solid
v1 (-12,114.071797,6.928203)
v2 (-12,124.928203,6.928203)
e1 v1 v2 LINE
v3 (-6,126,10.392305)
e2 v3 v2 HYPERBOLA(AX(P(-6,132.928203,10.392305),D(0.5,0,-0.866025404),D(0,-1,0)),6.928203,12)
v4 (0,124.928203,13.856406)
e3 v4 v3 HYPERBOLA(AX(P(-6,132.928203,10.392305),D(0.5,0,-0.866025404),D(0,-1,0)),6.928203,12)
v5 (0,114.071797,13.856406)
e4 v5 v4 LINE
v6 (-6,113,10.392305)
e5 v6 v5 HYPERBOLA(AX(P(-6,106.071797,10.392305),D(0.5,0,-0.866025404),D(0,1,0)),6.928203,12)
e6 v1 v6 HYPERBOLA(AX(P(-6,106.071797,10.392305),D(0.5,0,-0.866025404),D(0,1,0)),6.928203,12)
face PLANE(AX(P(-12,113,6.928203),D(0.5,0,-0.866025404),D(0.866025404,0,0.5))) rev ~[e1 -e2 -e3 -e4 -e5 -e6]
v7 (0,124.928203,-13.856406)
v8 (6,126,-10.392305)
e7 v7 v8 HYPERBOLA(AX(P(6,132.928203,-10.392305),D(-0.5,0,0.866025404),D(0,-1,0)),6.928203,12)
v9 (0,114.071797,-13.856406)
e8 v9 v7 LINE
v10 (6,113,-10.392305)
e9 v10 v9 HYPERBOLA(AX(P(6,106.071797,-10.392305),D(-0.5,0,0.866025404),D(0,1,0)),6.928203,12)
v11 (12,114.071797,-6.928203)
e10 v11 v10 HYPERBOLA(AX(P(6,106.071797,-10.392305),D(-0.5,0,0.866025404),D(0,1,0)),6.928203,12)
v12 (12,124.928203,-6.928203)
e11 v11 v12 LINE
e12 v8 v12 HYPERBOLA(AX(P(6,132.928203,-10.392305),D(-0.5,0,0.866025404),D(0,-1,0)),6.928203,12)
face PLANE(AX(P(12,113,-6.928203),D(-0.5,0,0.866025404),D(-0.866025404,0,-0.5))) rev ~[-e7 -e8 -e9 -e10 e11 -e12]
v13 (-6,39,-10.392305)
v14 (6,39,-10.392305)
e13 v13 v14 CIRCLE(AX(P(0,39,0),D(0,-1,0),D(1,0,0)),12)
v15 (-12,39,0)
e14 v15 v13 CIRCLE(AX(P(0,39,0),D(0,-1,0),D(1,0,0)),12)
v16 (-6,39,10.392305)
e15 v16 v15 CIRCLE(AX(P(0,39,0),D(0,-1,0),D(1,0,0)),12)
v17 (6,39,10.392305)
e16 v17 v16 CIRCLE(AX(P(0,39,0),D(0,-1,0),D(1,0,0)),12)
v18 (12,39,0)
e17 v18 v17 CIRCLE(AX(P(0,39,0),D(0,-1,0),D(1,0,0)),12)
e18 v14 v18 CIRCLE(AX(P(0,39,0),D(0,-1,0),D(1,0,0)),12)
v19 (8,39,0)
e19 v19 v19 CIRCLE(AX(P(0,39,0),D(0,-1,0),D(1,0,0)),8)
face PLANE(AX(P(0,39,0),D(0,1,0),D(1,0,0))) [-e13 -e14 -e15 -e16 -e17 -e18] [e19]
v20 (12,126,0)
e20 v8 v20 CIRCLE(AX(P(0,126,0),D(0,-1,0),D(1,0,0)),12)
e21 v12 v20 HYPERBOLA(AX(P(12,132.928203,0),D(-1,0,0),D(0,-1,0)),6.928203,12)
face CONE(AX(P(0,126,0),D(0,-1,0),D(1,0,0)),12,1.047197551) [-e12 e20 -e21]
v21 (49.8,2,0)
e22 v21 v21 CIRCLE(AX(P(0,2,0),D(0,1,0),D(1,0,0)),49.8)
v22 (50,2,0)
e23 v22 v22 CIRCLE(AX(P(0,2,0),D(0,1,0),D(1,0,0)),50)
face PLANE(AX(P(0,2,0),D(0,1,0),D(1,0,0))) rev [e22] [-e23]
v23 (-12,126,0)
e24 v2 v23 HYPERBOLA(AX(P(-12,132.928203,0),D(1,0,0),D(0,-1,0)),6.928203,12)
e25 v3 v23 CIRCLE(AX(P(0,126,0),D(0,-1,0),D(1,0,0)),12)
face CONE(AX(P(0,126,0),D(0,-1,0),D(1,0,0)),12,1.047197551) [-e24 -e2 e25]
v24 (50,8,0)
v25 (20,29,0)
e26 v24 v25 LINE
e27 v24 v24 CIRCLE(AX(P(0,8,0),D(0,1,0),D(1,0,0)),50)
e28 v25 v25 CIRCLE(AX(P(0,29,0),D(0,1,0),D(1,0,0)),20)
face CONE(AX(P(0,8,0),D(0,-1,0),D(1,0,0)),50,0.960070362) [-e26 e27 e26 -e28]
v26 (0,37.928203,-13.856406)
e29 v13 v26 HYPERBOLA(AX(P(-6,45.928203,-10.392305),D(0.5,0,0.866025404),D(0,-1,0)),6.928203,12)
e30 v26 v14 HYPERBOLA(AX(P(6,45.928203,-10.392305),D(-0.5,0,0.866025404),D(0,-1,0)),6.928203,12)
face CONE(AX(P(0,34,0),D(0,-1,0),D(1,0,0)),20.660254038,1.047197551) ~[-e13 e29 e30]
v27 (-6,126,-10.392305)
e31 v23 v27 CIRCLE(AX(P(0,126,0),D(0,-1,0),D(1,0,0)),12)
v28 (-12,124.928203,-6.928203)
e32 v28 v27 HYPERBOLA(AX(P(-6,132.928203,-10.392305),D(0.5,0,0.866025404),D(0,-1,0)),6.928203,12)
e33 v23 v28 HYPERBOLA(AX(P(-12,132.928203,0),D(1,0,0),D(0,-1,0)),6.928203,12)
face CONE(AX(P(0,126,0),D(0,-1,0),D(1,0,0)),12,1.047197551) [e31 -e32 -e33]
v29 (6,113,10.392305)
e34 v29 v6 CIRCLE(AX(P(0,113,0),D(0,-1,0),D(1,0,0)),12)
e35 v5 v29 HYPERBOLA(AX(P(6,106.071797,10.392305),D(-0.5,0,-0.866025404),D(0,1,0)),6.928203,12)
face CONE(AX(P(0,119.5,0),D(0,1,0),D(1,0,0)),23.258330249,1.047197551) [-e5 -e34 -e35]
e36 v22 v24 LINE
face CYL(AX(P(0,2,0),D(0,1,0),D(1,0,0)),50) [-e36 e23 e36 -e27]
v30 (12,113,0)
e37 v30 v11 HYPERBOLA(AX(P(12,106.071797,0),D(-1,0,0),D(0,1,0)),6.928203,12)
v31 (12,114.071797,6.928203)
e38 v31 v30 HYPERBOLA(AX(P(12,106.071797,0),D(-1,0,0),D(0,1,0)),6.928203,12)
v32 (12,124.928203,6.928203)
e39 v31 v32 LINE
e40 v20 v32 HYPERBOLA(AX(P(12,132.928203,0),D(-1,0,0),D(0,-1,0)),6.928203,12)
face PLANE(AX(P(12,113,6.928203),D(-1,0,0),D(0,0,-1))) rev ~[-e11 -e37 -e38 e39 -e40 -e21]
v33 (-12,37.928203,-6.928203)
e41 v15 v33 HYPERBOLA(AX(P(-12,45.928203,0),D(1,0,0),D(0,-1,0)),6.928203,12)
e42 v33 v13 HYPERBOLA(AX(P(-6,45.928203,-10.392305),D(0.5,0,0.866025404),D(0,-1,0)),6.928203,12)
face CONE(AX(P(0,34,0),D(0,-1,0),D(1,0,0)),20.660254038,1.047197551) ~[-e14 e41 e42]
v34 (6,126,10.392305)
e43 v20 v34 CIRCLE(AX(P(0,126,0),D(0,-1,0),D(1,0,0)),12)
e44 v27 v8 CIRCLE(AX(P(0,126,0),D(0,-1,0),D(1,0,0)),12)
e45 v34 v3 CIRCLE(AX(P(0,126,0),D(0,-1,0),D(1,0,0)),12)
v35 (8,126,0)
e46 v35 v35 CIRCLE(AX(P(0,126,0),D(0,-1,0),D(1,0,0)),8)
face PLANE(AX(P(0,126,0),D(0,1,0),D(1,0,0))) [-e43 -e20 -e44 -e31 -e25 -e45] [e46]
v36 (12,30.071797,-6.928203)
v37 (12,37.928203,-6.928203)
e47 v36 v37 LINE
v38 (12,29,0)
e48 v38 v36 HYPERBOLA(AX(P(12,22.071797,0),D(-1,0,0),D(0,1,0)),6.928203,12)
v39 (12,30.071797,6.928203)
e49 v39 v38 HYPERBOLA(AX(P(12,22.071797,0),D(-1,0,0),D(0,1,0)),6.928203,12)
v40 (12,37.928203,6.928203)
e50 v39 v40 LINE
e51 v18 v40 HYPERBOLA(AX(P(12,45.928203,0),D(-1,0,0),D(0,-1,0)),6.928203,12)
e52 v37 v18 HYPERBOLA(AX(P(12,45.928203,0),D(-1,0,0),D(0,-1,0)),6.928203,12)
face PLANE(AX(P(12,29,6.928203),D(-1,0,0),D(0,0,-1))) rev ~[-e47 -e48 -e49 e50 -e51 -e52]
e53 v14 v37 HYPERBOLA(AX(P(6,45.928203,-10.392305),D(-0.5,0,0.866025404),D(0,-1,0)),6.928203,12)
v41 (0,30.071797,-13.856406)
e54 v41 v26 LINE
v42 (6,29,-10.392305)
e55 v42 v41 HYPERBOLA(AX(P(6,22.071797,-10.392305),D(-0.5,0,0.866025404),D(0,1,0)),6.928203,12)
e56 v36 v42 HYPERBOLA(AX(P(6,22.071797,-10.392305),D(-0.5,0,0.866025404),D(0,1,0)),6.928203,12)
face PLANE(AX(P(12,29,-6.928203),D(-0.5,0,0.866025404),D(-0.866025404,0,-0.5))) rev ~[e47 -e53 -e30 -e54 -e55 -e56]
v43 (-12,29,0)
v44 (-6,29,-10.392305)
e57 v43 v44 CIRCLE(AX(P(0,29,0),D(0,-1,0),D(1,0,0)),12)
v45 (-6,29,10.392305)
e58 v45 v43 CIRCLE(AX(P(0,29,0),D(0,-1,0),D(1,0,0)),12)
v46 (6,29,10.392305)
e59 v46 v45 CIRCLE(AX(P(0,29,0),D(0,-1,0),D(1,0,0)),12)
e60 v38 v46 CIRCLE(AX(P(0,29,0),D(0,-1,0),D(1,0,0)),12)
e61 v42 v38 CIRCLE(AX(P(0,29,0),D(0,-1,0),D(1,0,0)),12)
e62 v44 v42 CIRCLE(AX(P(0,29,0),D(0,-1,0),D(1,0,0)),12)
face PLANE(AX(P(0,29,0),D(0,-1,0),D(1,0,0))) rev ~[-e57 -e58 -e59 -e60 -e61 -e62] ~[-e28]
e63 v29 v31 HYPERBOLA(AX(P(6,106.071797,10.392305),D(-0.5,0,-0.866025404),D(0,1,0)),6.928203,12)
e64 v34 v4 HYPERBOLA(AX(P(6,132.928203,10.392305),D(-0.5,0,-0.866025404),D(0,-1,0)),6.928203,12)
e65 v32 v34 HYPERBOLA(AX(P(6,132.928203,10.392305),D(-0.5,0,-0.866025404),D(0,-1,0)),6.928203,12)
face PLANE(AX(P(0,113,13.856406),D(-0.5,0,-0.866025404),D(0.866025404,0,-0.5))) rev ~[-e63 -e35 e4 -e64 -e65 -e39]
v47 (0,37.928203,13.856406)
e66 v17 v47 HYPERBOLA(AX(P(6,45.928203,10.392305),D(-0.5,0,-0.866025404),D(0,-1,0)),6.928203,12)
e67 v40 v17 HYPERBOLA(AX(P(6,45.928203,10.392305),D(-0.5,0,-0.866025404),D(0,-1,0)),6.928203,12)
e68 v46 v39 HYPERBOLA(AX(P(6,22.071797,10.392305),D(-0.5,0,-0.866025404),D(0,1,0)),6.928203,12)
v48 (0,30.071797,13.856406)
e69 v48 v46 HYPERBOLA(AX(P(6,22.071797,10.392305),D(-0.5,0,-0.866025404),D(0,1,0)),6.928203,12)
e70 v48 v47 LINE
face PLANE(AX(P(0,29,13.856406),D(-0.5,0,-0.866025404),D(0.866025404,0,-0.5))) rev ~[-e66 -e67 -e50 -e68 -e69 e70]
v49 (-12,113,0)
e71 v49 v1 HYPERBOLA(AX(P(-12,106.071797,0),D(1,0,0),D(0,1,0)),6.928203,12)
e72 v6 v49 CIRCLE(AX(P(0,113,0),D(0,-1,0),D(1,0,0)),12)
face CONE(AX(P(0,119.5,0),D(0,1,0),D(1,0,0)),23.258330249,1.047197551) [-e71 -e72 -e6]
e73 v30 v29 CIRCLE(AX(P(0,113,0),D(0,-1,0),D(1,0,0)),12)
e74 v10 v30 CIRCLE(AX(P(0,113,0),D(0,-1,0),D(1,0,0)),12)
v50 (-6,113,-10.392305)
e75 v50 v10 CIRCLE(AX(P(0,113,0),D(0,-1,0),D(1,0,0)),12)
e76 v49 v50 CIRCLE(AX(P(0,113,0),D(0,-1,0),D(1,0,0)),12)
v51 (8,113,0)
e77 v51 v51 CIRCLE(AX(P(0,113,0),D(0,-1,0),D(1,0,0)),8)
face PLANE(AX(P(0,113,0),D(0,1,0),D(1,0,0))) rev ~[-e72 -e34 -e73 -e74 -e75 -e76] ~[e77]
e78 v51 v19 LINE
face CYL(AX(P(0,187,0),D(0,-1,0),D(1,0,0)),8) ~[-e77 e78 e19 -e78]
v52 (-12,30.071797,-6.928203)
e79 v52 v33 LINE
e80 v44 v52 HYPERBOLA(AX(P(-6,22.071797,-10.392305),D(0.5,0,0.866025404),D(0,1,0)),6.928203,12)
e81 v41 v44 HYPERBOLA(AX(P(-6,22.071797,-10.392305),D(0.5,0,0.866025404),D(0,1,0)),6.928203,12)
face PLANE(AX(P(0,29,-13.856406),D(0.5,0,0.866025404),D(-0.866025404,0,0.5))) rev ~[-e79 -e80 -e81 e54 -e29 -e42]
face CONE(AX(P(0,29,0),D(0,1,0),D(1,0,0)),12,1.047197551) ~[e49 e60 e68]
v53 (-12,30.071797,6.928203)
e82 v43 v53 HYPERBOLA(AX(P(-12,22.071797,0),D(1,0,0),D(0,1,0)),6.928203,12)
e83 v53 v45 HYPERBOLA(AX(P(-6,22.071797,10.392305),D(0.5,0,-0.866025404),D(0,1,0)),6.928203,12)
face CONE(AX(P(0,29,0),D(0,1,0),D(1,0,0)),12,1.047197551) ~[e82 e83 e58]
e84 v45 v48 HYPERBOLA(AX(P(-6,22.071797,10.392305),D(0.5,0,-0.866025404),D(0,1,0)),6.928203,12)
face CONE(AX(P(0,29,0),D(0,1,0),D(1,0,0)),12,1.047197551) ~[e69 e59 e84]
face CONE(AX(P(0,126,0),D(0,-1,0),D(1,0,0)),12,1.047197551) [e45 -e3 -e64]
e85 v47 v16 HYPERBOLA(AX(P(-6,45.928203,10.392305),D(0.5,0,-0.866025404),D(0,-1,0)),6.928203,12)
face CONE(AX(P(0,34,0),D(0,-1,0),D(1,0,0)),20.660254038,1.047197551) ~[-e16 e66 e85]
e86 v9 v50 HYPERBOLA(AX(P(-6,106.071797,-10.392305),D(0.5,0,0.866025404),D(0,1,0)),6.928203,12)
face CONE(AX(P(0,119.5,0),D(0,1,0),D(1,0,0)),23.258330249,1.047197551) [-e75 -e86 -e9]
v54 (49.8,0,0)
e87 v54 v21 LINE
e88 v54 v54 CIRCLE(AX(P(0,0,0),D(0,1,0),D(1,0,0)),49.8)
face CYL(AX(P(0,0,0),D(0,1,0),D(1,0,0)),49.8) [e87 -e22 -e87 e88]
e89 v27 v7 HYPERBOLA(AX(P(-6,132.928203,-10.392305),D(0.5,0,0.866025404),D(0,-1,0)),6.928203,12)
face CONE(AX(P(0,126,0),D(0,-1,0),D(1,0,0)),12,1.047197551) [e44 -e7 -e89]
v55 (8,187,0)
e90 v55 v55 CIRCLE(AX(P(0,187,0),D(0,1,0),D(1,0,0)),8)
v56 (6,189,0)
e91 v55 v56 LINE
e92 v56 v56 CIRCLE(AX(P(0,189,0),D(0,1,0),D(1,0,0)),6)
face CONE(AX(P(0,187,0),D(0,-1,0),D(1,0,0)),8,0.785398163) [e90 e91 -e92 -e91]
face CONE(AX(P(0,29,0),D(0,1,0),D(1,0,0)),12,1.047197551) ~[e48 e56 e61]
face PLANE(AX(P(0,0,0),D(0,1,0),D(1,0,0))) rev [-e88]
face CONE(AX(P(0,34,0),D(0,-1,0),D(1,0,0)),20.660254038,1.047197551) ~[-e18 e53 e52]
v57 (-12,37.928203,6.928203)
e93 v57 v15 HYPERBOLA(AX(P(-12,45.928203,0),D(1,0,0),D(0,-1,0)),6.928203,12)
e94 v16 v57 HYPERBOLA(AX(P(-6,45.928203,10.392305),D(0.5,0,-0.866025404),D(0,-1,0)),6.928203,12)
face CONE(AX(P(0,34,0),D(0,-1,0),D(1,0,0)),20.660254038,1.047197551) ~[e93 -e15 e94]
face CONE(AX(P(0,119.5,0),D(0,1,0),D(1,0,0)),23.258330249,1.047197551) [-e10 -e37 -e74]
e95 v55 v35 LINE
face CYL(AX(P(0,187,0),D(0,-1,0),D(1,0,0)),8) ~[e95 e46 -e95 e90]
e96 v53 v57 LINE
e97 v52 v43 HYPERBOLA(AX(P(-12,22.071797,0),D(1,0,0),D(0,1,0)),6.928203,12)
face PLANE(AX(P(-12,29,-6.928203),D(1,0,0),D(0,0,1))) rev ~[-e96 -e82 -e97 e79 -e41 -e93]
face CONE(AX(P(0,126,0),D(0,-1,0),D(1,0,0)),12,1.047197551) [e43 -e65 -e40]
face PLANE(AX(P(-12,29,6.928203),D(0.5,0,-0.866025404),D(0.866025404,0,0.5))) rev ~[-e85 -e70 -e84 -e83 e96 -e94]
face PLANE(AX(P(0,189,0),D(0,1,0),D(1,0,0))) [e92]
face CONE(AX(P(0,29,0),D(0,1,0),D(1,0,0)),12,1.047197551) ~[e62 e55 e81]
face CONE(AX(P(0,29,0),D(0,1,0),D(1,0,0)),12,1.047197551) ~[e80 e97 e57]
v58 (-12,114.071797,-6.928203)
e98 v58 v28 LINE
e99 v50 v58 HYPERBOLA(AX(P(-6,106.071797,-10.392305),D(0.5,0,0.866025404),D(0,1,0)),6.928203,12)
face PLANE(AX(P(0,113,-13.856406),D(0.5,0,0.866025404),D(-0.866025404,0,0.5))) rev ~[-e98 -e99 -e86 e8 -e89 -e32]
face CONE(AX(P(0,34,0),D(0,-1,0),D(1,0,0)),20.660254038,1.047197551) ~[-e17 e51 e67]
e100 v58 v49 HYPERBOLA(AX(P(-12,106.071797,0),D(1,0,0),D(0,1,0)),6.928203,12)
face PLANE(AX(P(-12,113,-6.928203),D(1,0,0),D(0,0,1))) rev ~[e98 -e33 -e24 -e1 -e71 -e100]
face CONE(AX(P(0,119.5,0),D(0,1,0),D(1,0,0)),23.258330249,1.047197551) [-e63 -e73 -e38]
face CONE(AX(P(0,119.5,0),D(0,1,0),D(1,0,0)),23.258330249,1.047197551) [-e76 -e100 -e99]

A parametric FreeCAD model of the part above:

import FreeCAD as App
import Part
import Sketcher
from FreeCAD import Vector
Q = App.Units.Quantity


def add_polygon(sketch, points):
    """Adds a closed chain of lines whose ends are joined by coincident constraints."""
    first, n = sketch.GeometryCount, len(points)
    for a, b in zip(points, points[1:] + points[:1]):
        sketch.addGeometry(Part.LineSegment(App.Vector(*a, 0), App.Vector(*b, 0)), False)
    for i in range(n):
        sketch.addConstraint(Sketcher.Constraint("Coincident", first + i, 2, first + (i + 1) % n, 1))

doc = App.newDocument("Part")
params = doc.addObject("Spreadsheet::Sheet", "Params")
for row, (alias, value) in enumerate([
    ("sketch1_width", "6 mm"),
    ("sketch1_width2", "12 mm"),
    ("sketch1_height", "189 mm"),
    ("sketch1_height2", "158 mm"),
    ("sketch1_height3", "2 mm"),
    ("revolution_angle", "360 deg"),
    ("pad1_length", "10 mm"),
    ("pad2_length", "13 mm"),
    ("sketch4_height", "5 mm"),
    ("sketch4_length", "13 mm"),
    ("groove_angle", "360 deg"),
], start=1):
    params.set(f"A{row}", alias)
    params.set(f"B{row}", "=" + value)
    params.setAlias(f"B{row}", alias)

body = doc.addObject("PartDesign::Body", "Body")

# Sketch on XY plane
sketch1 = doc.addObject("Sketcher::SketchObject", "Sketch")
body.addObject(sketch1)
sketch1.AttachmentSupport = (doc.XY_Plane, [""])
sketch1.MapMode = "FlatFace"
add_polygon(sketch1, [(-49.8, 0), (0, 0), (0, 189), (-6, 189), (-8, 187), (-8, 29), (-20, 29), (-50, 8), (-50, 2), (-49.8, 2)])  # lines 0-9
sketch1.addConstraint([
    Sketcher.Constraint("Horizontal", 0),
    Sketcher.Constraint("Vertical", 1),
    Sketcher.Constraint("Horizontal", 2),
    Sketcher.Constraint("Vertical", 4),
    Sketcher.Constraint("Horizontal", 5),
    Sketcher.Constraint("Vertical", 7),
    Sketcher.Constraint("Horizontal", 8),
    Sketcher.Constraint("Vertical", 9),
    Sketcher.Constraint("Coincident", 0, 2, -1, 1),
    Sketcher.Constraint("Equal", 2, 7),
    Sketcher.Constraint("DistanceX", 2, 2, 2, 1, 6.0),
    Sketcher.Constraint("DistanceX", 5, 2, 5, 1, 12.0),
    Sketcher.Constraint("DistanceY", 1, 1, 1, 2, 189.0),
    Sketcher.Constraint("DistanceY", 4, 2, 4, 1, 158.0),
    Sketcher.Constraint("DistanceY", 9, 2, 9, 1, 2.0),
    Sketcher.Constraint("Angle", 3, Q("-135 deg")),
    Sketcher.Constraint("DistanceX", 0, 1, 0, 2, 49.8),
    Sketcher.Constraint("DistanceX", 8, 1, 8, 2, 0.2),
    Sketcher.Constraint("DistanceX", 3, 2, -1, 1, 8.0),
])
sketch1.setExpression("Constraints[20]", "Params.sketch1_width")
sketch1.setExpression("Constraints[21]", "Params.sketch1_width2")
sketch1.setExpression("Constraints[22]", "Params.sketch1_height")
sketch1.setExpression("Constraints[23]", "Params.sketch1_height2")
sketch1.setExpression("Constraints[24]", "Params.sketch1_height3")
revolution = doc.addObject("PartDesign::Revolution", "Revolution")
body.addObject(revolution)
revolution.Profile = sketch1
revolution.ReferenceAxis = (sketch1, ["V_Axis"])
revolution.setExpression("Angle", "Params.revolution_angle")

# Sketch on XZ plane
sketch2 = doc.addObject("Sketcher::SketchObject", "Sketch001")
body.addObject(sketch2)
sketch2.AttachmentSupport = (doc.XZ_Plane, [""])
sketch2.MapMode = "FlatFace"
sketch2.AttachmentOffset = App.Placement(Vector(0, 0, -29), App.Rotation())
add_polygon(sketch2, [(0, -14), (-12, -7), (-12, 7), (0, 14), (12, 7), (12, -7)])  # lines 0-5
sketch2.addConstraint([
    Sketcher.Constraint("Vertical", 1),
    Sketcher.Constraint("Vertical", 4),
    Sketcher.Constraint("Symmetric", 0, 2, 3, 2, -1, 1),
    Sketcher.Constraint("Symmetric", 2, 2, 5, 2, -1, 1),
    Sketcher.Constraint("PointOnObject", 2, 2, -2),
    Sketcher.Constraint("Parallel", 2, 5),
    Sketcher.Constraint("Horizontal", 1, 2, 3, 2),
    Sketcher.Constraint("Angle", 0, Q("150 deg")),
    Sketcher.Constraint("DistanceX", 0, 2, -1, 1, 12.0),
    Sketcher.Constraint("DistanceY", 1, 1, 1, 2, 13.856406),
])
pad1 = doc.addObject("PartDesign::Pad", "Pad")
body.addObject(pad1)
pad1.Profile = sketch2
pad1.setExpression("Length", "Params.pad1_length")
pad1.Reversed = True

# Sketch on XZ plane
sketch3 = doc.addObject("Sketcher::SketchObject", "Sketch002")
body.addObject(sketch3)
sketch3.AttachmentSupport = (doc.XZ_Plane, [""])
sketch3.MapMode = "FlatFace"
sketch3.AttachmentOffset = App.Placement(Vector(0, 0, -113), App.Rotation())
add_polygon(sketch3, [(12, -7), (0, -14), (-12, -7), (-12, 7), (0, 14), (12, 7)])  # lines 0-5
sketch3.addConstraint([
    Sketcher.Constraint("Vertical", 2),
    Sketcher.Constraint("Vertical", 5),
    Sketcher.Constraint("Symmetric", 0, 2, 3, 2, -1, 1),
    Sketcher.Constraint("Symmetric", 1, 2, 4, 2, -1, 1),
    Sketcher.Constraint("PointOnObject", 0, 2, -2),
    Sketcher.Constraint("Parallel", 0, 3),
    Sketcher.Constraint("Horizontal", 2, 2, 4, 2),
    Sketcher.Constraint("Angle", 0, Q("-150 deg")),
    Sketcher.Constraint("DistanceX", 1, 2, -1, 1, 12.0),
    Sketcher.Constraint("DistanceY", 2, 1, 2, 2, 13.856406),
])
pad2 = doc.addObject("PartDesign::Pad", "Pad001")
body.addObject(pad2)
pad2.Profile = sketch3
pad2.setExpression("Length", "Params.pad2_length")
pad2.Reversed = True

# Sketch on XY plane
sketch4 = doc.addObject("Sketcher::SketchObject", "Sketch003")
body.addObject(sketch4)
sketch4.AttachmentSupport = (doc.XY_Plane, [""])
sketch4.MapMode = "FlatFace"
add_polygon(sketch4, [(-12, 126), (-23, 126), (-23, 120)])  # lines 0-2
add_polygon(sketch4, [(-23, 120), (-23, 113), (-12, 113)])  # lines 3-5
add_polygon(sketch4, [(-21, 39), (-21, 34), (-12, 39)])  # lines 6-8
add_polygon(sketch4, [(-21, 34), (-21, 29), (-12, 29)])  # lines 9-11
sketch4.addConstraint([
    Sketcher.Constraint("Horizontal", 0),
    Sketcher.Constraint("Vertical", 1),
    Sketcher.Constraint("Vertical", 3),
    Sketcher.Constraint("Horizontal", 4),
    Sketcher.Constraint("Vertical", 6),
    Sketcher.Constraint("Horizontal", 8),
    Sketcher.Constraint("Vertical", 9),
    Sketcher.Constraint("Horizontal", 10),
    Sketcher.Constraint("Coincident", 5, 2, 1, 2),
    Sketcher.Constraint("Coincident", 11, 2, 6, 2),
    Sketcher.Constraint("Parallel", 2, 7),
    Sketcher.Constraint("Parallel", 5, 11),
    Sketcher.Constraint("Vertical", 2, 2, 4, 2),
    Sketcher.Constraint("Vertical", 4, 2, 7, 2),
    Sketcher.Constraint("Vertical", 7, 2, 10, 2),
    Sketcher.Constraint("Equal", 1, 3),
    Sketcher.Constraint("DistanceY", 6, 2, 6, 1, 5.0),
    Sketcher.Constraint("Angle", 2, Q("30 deg")),
    Sketcher.Constraint("Distance", 2, 13.0),
    Sketcher.Constraint("DistanceY", -1, 1, 0, 2, 126.0),
    Sketcher.Constraint("DistanceX", 2, 2, -1, 1, 12.0),
    Sketcher.Constraint("DistanceY", -1, 1, 6, 2, 34.0),
])
sketch4.setExpression("Constraints[28]", "Params.sketch4_height")
sketch4.setExpression("Constraints[30]", "Params.sketch4_length")
groove = doc.addObject("PartDesign::Groove", "Groove")
body.addObject(groove)
groove.Profile = sketch4
groove.ReferenceAxis = (sketch4, ["V_Axis"])
groove.setExpression("Angle", "Params.groove_angle")

doc.recompute()
